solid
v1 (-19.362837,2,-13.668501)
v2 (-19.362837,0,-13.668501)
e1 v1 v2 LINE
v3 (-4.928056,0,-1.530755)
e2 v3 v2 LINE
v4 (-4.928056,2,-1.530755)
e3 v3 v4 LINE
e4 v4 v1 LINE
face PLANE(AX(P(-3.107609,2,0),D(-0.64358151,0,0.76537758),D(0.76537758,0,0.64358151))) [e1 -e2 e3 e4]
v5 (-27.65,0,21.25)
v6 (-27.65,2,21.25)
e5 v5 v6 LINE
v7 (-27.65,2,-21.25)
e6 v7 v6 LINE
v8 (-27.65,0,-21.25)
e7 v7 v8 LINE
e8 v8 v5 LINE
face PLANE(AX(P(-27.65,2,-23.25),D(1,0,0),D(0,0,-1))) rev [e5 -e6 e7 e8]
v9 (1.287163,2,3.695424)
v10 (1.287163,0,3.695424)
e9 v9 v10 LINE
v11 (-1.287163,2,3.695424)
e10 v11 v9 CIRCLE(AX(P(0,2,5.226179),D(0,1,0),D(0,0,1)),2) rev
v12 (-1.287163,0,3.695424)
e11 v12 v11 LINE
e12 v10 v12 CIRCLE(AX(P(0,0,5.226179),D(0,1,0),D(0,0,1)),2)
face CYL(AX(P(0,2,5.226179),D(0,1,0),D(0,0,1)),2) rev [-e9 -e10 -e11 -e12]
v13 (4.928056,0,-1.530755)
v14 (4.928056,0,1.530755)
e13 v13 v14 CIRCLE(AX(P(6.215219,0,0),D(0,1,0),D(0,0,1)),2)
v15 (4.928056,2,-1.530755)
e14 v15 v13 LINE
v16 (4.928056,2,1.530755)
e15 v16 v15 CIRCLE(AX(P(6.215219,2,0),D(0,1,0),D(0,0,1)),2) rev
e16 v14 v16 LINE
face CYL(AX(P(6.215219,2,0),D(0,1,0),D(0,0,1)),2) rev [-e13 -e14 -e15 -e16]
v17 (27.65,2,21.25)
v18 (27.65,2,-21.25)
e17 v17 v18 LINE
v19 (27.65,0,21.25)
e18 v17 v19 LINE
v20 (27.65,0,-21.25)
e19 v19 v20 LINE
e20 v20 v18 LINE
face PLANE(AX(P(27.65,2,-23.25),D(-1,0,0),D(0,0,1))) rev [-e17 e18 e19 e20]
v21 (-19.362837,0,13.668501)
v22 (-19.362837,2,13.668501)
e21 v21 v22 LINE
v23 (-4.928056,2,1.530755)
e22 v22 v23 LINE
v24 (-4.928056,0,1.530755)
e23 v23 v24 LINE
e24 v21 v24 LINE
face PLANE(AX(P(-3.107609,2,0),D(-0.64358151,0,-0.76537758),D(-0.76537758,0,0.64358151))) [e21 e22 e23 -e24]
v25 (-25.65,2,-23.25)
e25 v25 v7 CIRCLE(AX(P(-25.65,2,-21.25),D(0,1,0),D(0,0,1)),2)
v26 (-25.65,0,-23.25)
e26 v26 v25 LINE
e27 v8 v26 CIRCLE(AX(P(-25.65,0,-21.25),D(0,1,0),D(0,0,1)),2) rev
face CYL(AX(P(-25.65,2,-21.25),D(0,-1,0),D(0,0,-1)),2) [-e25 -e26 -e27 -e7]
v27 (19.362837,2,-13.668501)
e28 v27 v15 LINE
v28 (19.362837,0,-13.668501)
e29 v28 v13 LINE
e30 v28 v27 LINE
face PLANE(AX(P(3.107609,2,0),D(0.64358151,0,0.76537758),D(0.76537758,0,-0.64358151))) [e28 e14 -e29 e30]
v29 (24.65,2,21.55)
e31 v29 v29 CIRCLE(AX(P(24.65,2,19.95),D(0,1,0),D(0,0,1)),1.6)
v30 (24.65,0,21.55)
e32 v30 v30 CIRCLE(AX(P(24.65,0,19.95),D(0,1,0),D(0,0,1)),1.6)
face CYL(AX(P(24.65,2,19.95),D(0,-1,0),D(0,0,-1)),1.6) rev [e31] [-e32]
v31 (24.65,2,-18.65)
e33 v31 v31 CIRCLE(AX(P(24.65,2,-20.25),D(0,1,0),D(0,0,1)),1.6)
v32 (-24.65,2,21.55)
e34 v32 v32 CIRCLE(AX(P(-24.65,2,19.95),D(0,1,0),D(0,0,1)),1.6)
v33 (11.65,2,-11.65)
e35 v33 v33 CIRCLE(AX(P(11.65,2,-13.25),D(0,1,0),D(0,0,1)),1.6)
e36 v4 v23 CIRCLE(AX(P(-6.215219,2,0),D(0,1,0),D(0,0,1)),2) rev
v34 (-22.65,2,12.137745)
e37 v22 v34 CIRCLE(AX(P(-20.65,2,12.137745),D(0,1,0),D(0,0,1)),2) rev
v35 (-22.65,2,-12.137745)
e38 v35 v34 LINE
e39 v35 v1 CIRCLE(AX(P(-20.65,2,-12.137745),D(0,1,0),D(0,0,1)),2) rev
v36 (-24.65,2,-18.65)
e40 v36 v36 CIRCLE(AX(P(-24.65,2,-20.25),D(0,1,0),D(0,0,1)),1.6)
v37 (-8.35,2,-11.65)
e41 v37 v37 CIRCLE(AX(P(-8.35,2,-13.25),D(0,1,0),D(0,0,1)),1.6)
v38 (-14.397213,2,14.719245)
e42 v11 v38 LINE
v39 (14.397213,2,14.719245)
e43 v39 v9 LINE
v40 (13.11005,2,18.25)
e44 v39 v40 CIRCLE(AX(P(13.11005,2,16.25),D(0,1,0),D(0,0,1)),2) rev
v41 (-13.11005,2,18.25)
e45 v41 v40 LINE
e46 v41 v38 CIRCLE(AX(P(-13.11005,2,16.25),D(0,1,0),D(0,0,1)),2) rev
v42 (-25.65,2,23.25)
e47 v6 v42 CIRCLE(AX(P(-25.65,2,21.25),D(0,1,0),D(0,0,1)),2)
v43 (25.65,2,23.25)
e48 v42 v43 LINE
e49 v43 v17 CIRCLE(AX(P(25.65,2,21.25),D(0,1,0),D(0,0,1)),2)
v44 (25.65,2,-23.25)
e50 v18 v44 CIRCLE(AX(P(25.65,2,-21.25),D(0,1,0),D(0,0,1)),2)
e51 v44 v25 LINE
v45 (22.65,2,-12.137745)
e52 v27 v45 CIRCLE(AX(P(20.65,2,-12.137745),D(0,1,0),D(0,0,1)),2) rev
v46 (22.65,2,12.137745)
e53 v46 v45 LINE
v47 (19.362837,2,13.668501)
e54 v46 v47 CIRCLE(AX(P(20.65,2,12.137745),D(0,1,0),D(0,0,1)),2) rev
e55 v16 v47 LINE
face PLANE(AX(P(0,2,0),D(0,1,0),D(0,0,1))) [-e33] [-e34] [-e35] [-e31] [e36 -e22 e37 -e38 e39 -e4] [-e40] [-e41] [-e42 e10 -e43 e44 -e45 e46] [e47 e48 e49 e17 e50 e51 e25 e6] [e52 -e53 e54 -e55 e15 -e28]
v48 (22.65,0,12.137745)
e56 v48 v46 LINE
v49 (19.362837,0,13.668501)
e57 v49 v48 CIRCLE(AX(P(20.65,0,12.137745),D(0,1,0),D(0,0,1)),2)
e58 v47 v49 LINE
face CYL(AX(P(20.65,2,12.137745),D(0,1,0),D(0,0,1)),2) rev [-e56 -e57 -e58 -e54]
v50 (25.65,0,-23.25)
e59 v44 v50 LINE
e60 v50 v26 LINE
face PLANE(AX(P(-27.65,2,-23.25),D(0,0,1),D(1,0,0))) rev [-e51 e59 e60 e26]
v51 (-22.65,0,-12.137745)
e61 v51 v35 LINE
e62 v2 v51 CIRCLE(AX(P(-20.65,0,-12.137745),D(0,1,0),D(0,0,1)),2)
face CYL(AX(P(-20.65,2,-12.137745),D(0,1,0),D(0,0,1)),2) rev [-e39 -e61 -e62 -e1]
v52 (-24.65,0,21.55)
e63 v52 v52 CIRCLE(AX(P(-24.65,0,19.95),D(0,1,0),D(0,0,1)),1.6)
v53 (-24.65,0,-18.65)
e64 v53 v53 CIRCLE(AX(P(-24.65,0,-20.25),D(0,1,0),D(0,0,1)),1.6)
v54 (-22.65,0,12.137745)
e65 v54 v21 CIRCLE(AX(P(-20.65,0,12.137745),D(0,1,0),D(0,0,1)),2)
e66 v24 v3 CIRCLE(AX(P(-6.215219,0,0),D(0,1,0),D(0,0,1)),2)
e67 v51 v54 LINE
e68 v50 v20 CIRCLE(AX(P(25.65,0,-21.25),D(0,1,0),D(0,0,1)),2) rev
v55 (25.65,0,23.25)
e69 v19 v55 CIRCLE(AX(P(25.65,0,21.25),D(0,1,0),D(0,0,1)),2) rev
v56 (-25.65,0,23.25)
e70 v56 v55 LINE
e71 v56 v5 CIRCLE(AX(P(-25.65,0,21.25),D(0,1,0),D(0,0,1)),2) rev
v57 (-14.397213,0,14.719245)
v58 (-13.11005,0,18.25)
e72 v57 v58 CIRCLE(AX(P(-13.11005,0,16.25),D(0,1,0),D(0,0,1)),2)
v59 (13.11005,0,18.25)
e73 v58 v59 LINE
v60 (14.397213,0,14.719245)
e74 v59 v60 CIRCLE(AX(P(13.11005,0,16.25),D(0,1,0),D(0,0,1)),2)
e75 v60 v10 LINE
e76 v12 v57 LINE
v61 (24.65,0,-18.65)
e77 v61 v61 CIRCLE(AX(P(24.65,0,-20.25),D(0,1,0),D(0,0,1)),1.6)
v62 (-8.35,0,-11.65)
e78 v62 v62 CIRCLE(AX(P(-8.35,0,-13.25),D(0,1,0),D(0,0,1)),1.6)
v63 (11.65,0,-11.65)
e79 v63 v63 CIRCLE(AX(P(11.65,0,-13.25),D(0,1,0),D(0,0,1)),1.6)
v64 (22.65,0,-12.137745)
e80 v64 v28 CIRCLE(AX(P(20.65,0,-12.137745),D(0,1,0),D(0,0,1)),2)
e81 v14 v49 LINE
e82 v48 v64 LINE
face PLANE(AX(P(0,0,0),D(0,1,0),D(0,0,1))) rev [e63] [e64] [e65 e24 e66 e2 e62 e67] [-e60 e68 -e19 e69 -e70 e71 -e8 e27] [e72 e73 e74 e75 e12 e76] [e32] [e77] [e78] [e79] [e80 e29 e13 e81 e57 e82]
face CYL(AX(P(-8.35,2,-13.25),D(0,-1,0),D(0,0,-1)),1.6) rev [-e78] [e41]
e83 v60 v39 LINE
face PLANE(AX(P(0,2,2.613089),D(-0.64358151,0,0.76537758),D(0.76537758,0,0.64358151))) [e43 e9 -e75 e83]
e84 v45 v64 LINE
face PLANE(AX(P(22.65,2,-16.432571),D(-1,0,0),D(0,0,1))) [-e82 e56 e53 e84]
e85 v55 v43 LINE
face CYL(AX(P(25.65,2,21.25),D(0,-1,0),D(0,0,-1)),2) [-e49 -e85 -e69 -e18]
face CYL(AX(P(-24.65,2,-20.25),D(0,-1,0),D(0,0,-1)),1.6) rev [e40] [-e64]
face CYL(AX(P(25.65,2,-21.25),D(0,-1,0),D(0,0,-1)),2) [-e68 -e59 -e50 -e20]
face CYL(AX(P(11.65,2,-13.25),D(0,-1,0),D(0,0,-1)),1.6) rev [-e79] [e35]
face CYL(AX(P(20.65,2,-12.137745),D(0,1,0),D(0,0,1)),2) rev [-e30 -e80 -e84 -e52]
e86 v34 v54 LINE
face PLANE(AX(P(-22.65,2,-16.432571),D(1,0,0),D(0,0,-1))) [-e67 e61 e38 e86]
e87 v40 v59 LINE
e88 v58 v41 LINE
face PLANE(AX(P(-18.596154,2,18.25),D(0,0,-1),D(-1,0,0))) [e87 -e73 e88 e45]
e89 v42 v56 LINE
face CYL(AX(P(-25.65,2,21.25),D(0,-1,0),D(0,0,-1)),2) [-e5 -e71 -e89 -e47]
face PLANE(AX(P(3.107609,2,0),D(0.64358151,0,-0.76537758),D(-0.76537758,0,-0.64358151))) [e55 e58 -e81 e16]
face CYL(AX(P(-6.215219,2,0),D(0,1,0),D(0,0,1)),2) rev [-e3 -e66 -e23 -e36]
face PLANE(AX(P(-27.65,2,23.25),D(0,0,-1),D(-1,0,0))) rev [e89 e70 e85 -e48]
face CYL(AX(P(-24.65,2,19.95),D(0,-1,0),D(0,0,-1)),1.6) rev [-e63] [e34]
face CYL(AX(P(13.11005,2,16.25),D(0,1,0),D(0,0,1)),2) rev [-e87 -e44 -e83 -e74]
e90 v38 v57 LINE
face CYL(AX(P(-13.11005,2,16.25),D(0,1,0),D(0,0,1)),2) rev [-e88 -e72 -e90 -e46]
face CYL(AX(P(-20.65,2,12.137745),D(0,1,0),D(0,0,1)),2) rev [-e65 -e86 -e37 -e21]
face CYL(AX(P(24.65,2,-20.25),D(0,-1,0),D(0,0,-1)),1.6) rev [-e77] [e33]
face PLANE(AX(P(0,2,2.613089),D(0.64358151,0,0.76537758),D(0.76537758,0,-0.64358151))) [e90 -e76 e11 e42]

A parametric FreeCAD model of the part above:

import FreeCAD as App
import Part
import Sketcher

V = App.Vector


def edges_at(feature, points):
    """Names of the edges that pass closest to the given points."""
    edges = feature.Shape.Edges
    near = lambda p: min(range(len(edges)), key=lambda i: edges[i].distToShape(Part.Vertex(*p))[0])
    return sorted({f"Edge{near(p) + 1}" for p in points})


def add_polygon(sketch, points):
    """Adds a closed chain of lines whose ends are joined by coincident constraints."""
    first, n = sketch.GeometryCount, len(points)
    for a, b in zip(points, points[1:] + points[:1]):
        sketch.addGeometry(Part.LineSegment(App.Vector(*a, 0), App.Vector(*b, 0)), False)
    for i in range(n):
        sketch.addConstraint(Sketcher.Constraint("Coincident", first + i, 2, first + (i + 1) % n, 1))

doc = App.newDocument("Part")
params = doc.addObject("Spreadsheet::Sheet", "Params")
for row, (alias, value) in enumerate([
    ("sketch1_diameter", "3.2 mm"),
    ("sketch1_width", "55.3 mm"),
    ("sketch1_height", "46.5 mm"),
    ("pad1_length", "2 mm"),
    ("fillet_radius", "2 mm"),
], start=1):
    params.set(f"A{row}", alias)
    params.set(f"B{row}", "=" + value)
    params.setAlias(f"B{row}", alias)

body = doc.addObject("PartDesign::Body", "Body")

# Sketch on XZ plane
sketch1 = body.newObject("Sketcher::SketchObject", "Sketch")
sketch1.AttachmentSupport = (doc.getObject("XZ_Plane"), [""])
sketch1.MapMode = "FlatFace"
add_polygon(sketch1, [(-27.65, -23.25), (-27.65, 23.25), (27.65, 23.25), (27.65, -23.25)])  # lines 0-3
sketch1.addGeometry(Part.Circle(V(-24.65, 19.95, 0), V(0, 0, 1), 1.6), False)  # 4
add_polygon(sketch1, [(-22.65, -16.432571), (-3.107609, 0), (-22.65, 16.432571)])  # lines 5-7
sketch1.addGeometry(Part.Circle(V(24.65, 19.95, 0), V(0, 0, 1), 1.6), False)  # 8
add_polygon(sketch1, [(-18.596154, 18.25), (0, 2.613089), (18.596154, 18.25)])  # lines 9-11
add_polygon(sketch1, [(22.65, 16.432571), (3.107609, 0), (22.65, -16.432571)])  # lines 12-14
sketch1.addGeometry(Part.Circle(V(-24.65, -20.25, 0), V(0, 0, 1), 1.6), False)  # 15
sketch1.addGeometry(Part.Circle(V(-8.35, -13.25, 0), V(0, 0, 1), 1.6), False)  # 16
sketch1.addGeometry(Part.Circle(V(11.65, -13.25, 0), V(0, 0, 1), 1.6), False)  # 17
sketch1.addGeometry(Part.Circle(V(24.65, -20.25, 0), V(0, 0, 1), 1.6), False)  # 18
sketch1.addConstraint([
    Sketcher.Constraint("Vertical", 0),
    Sketcher.Constraint("Horizontal", 1),
    Sketcher.Constraint("Vertical", 2),
    Sketcher.Constraint("Horizontal", 3),
    Sketcher.Constraint("Vertical", 7),
    Sketcher.Constraint("Horizontal", 11),
    Sketcher.Constraint("Vertical", 14),
    Sketcher.Constraint("Equal", 4, 8),
    Sketcher.Constraint("Equal", 8, 15),
    Sketcher.Constraint("Equal", 15, 16),
    Sketcher.Constraint("Equal", 16, 17),
    Sketcher.Constraint("Equal", 17, 18),
    Sketcher.Constraint("Symmetric", 0, 2, 2, 2, -1, 1),
    Sketcher.Constraint("Symmetric", 5, 2, 12, 2, -1, 1),
    Sketcher.Constraint("Symmetric", 6, 2, 13, 2, -1, 1),
    Sketcher.Constraint("Symmetric", 4, 3, 8, 3, -2),
    Sketcher.Constraint("Symmetric", 15, 3, 18, 3, -2),
    Sketcher.Constraint("PointOnObject", 5, 2, -1),
    Sketcher.Constraint("PointOnObject", 9, 2, -2),
    Sketcher.Constraint("Parallel", 6, 9),
    Sketcher.Constraint("Parallel", 5, 10),
    Sketcher.Constraint("Parallel", 10, 12),
    Sketcher.Constraint("Horizontal", 16, 3, 17, 3),
    Sketcher.Constraint("Horizontal", 7, 2, 13, 2),
    Sketcher.Constraint("Vertical", 4, 3, 15, 3),
    Sketcher.Constraint("Diameter", 4, 3.2),
    Sketcher.Constraint("DistanceX", 1, 1, 1, 2, 55.3),
    Sketcher.Constraint("DistanceY", 0, 1, 0, 2, 46.5),
    Sketcher.Constraint("DistanceY", 15, 3, 16, 3, 7.0),
    Sketcher.Constraint("DistanceX", 16, 3, 8, 3, 33.0),
    Sketcher.Constraint("DistanceX", 16, 3, 17, 3, 20.0),
    Sketcher.Constraint("DistanceX", 0, 2, 4, 3, 3.0),
    Sketcher.Constraint("DistanceY", 2, 2, 18, 3, 3.0),
    Sketcher.Constraint("DistanceX", 4, 3, 6, 2, 2.0),
    Sketcher.Constraint("DistanceY", 10, 2, 1, 2, 5.0),
    Sketcher.Constraint("DistanceY", 15, 3, 4, 3, 40.2),
    Sketcher.Constraint("DistanceY", 7, 2, 7, 1, 32.865141),
    Sketcher.Constraint("DistanceX", 11, 2, 11, 1, 37.192308),
    Sketcher.Constraint("DistanceX", 5, 2, -1, 1, 3.107609),
])
sketch1.setExpression("Constraints[38]", "Params.sketch1_diameter")
sketch1.setExpression("Constraints[39]", "Params.sketch1_width")
sketch1.setExpression("Constraints[40]", "Params.sketch1_height")
pad1 = body.newObject("PartDesign::Pad", "Pad")
pad1.Profile = sketch1
pad1.setExpression("Length", "Params.pad1_length")
pad1.Reversed = True
doc.recompute()

fillet = body.newObject("PartDesign::Fillet", "Fillet")
fillet.Base = (pad1, edges_at(pad1, [
    (-22.65, 1, 16.433),
    (-3.108, 1, 0),
    (-22.65, 1, -16.433),
    (18.596, 1, 18.25),
    (0, 1, 2.613),
    (-18.596, 1, 18.25),
    (3.108, 1, 0),
    (22.65, 1, 16.433),
    (22.65, 1, -16.433),
    (27.65, 1, 23.25),
    (-27.65, 1, 23.25),
    (-27.65, 1, -23.25),
    (27.65, 1, -23.25),
]))
fillet.setExpression("Radius", "Params.fillet_radius")

doc.recompute()
